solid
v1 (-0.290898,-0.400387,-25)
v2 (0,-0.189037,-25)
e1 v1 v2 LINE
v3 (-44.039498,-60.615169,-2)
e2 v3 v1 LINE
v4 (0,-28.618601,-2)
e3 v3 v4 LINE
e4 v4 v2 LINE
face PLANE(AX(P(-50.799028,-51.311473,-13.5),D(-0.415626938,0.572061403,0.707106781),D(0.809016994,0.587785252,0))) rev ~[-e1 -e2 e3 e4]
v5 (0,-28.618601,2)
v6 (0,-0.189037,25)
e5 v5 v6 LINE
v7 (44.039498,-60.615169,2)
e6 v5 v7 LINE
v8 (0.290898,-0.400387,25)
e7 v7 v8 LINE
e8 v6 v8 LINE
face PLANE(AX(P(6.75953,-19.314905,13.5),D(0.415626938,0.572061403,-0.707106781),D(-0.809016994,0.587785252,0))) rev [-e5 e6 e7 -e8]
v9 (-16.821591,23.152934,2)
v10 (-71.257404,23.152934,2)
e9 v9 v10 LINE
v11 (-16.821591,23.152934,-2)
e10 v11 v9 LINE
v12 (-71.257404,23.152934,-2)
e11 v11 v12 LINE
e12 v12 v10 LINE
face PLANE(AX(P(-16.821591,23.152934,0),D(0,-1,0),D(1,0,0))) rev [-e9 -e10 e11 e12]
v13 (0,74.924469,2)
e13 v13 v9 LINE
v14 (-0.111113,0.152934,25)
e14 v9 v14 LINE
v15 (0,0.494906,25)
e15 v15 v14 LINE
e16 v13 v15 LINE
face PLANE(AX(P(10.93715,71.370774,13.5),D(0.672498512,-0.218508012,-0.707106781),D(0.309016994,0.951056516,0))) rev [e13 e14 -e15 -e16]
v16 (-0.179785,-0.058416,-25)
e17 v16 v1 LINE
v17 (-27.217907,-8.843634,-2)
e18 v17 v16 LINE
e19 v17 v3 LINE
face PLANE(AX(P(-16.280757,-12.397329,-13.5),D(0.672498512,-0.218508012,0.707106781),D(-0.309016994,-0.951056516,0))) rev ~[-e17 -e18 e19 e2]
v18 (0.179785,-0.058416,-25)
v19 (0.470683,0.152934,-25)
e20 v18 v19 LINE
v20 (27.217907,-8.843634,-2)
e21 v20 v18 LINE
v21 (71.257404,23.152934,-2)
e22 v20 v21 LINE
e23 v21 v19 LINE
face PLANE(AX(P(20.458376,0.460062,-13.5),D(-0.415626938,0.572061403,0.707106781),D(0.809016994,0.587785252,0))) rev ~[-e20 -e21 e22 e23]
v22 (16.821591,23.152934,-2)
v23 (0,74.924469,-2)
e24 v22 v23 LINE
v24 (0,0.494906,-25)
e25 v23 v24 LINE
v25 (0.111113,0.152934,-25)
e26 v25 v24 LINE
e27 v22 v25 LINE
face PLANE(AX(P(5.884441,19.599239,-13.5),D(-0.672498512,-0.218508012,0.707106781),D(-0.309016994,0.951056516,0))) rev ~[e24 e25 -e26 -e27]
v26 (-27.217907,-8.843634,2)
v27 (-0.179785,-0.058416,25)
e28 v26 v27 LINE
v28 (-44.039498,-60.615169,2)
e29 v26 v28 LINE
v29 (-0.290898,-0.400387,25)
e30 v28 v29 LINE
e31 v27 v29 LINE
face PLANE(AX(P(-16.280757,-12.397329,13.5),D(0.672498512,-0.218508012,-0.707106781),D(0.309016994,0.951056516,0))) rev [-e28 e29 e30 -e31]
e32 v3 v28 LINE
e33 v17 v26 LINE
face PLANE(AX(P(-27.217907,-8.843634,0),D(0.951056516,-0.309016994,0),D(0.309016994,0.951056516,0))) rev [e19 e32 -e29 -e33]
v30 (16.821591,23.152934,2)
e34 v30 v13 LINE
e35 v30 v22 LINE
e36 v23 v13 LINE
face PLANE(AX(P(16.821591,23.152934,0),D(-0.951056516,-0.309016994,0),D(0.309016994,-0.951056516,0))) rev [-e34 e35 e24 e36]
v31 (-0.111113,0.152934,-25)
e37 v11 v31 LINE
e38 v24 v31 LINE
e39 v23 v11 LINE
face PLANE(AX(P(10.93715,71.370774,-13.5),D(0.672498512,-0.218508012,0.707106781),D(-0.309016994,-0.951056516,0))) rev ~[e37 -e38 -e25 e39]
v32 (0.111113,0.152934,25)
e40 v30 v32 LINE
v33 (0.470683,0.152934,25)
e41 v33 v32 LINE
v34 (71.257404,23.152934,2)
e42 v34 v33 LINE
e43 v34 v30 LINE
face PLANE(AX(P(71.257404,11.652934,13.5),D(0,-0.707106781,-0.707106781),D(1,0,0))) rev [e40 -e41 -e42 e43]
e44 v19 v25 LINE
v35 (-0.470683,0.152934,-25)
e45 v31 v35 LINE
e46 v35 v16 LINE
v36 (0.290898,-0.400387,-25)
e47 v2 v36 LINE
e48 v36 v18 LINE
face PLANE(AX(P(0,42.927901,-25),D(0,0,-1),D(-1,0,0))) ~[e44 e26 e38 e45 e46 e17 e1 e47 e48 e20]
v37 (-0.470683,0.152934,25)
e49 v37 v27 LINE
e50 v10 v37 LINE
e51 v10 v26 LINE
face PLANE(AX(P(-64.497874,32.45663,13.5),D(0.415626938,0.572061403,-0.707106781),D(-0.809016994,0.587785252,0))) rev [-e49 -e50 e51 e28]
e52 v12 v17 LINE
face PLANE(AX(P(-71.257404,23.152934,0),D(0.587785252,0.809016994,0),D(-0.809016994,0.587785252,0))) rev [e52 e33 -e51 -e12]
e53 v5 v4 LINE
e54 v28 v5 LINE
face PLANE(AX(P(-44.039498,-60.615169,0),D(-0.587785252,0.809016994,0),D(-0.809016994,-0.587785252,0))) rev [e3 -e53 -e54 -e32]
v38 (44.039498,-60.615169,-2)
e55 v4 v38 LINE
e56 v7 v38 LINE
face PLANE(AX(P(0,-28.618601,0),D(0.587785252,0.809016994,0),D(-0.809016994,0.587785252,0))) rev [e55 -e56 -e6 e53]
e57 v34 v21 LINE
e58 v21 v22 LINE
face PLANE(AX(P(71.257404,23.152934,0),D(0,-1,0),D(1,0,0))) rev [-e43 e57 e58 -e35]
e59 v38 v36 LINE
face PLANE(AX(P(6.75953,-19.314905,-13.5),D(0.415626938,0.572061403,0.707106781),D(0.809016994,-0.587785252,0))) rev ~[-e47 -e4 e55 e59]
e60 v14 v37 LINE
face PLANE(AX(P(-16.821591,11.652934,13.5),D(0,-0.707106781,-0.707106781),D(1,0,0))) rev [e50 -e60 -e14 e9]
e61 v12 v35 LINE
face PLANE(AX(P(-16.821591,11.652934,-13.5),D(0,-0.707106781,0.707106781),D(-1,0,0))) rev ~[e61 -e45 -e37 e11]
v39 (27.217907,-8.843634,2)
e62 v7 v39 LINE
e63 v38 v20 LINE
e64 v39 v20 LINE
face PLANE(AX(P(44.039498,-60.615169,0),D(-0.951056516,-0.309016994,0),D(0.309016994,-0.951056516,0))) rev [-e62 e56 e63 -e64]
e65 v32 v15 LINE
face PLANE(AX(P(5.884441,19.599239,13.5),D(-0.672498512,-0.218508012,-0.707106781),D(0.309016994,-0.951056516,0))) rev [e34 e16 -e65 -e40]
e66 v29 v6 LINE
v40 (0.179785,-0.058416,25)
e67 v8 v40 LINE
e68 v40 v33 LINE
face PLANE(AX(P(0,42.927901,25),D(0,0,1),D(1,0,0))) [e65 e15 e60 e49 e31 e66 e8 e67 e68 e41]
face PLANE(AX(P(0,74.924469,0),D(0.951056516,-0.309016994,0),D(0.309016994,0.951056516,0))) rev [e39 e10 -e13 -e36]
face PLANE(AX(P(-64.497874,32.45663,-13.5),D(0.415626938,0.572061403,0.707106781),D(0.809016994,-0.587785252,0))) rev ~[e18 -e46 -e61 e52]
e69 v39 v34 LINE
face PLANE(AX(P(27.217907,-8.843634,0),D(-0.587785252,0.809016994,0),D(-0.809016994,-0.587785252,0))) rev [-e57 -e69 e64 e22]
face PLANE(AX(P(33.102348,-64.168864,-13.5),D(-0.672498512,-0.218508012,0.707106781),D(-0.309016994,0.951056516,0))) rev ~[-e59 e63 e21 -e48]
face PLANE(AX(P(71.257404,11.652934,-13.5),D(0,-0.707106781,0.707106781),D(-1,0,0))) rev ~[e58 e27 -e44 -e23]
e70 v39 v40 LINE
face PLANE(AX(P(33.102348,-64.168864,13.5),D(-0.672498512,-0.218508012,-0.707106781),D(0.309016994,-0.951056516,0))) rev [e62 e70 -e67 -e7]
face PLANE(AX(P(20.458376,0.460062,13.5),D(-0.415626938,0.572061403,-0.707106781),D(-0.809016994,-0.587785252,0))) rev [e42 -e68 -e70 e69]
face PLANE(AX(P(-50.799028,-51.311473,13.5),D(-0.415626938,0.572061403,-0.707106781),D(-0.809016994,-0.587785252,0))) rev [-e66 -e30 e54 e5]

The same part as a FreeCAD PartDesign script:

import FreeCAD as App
import Part
import Sketcher

V = App.Vector
Q = App.Units.Quantity


def edges_at(feature, points):
    """Names of the edges that pass closest to the given points."""
    edges = feature.Shape.Edges
    near = lambda p: min(range(len(edges)), key=lambda i: edges[i].distToShape(Part.Vertex(*p))[0])
    return sorted({f"Edge{near(p) + 1}" for p in points})

doc = App.newDocument("Part")
body = doc.addObject("PartDesign::Body", "Body")

sketch1 = body.newObject("Sketcher::SketchObject", "Sketch")
sketch1.AttachmentSupport = (doc.getObject("XY_Plane"), [""])
sketch1.MapMode = "FlatFace"
sketch1.addGeometry([
    Part.LineSegment(V(16.821591, 23.152934, 0), V(0, 74.924469, 0)),
    Part.LineSegment(V(0, 74.924469, 0), V(-16.821591, 23.152934, 0)),
    Part.LineSegment(V(-16.821591, 23.152934, 0), V(-71.257404, 23.152934, 0)),
    Part.LineSegment(V(-71.257404, 23.152934, 0), V(-27.217907, -8.843634, 0)),
    Part.LineSegment(V(-27.217907, -8.843634, 0), V(-44.039498, -60.615169, 0)),
    Part.LineSegment(V(-44.039498, -60.615169, 0), V(0, -28.618601, 0)),
    Part.LineSegment(V(0, -28.618601, 0), V(44.039498, -60.615169, 0)),
    Part.LineSegment(V(44.039498, -60.615169, 0), V(27.217907, -8.843634, 0)),
    Part.LineSegment(V(27.217907, -8.843634, 0), V(71.257404, 23.152934, 0)),
    Part.LineSegment(V(71.257404, 23.152934, 0), V(16.821591, 23.152934, 0)),
], False)
sketch1.addConstraint([
    Sketcher.Constraint("Coincident", 0, 2, 1, 1),
    Sketcher.Constraint("Coincident", 1, 2, 2, 1),
    Sketcher.Constraint("Coincident", 2, 2, 3, 1),
    Sketcher.Constraint("Coincident", 3, 2, 4, 1),
    Sketcher.Constraint("Coincident", 4, 2, 5, 1),
    Sketcher.Constraint("Coincident", 5, 2, 6, 1),
    Sketcher.Constraint("Coincident", 6, 2, 7, 1),
    Sketcher.Constraint("Coincident", 7, 2, 8, 1),
    Sketcher.Constraint("Coincident", 8, 2, 9, 1),
    Sketcher.Constraint("Coincident", 9, 2, 0, 1),
    Sketcher.Constraint("Horizontal", 2),
    Sketcher.Constraint("Horizontal", 9),
    Sketcher.Constraint("Symmetric", 4, 2, 6, 2, -2),
    Sketcher.Constraint("Symmetric", 3, 2, 7, 2, -2),
    Sketcher.Constraint("Symmetric", 2, 2, 8, 2, -2),
    Sketcher.Constraint("PointOnObject", 0, 2, -2),
    Sketcher.Constraint("PointOnObject", 5, 2, -2),
    Sketcher.Constraint("Parallel", 1, 4),
    Sketcher.Constraint("Parallel", 3, 6),
    Sketcher.Constraint("Parallel", 0, 7),
    Sketcher.Constraint("Equal", 1, 3),
    Sketcher.Constraint("Equal", 3, 4),
    Sketcher.Constraint("Equal", 4, 5),
    Sketcher.Constraint("Angle", 0, Q("108 deg")),
    Sketcher.Constraint("Angle", 3, Q("-36 deg")),
    Sketcher.Constraint("DistanceY", 5, 2, -1, 1, 28.618601),
    Sketcher.Constraint("DistanceX", 2, 2, 2, 1, 54.435813),
])
pad1 = body.newObject("PartDesign::Pad", "Pad")
pad1.Profile = sketch1
pad1.Length = 25
doc.recompute()

chamfer = body.newObject("PartDesign::Chamfer", "Chamfer")
chamfer.Base = (pad1, edges_at(pad1, [
    (8.411, 49.039, 25),
    (-8.411, 49.039, 25),
    (-44.039, 23.153, 25),
    (-49.238, 7.155, 25),
    (-35.629, -34.729, 25),
    (-22.02, -44.617, 25),
    (22.02, -44.617, 25),
    (35.629, -34.729, 25),
    (49.238, 7.155, 25),
    (44.039, 23.153, 25),
]))
chamfer.Size = 23
body2 = doc.addObject("PartDesign::Body", "Body001")
doc.recompute()

body2.BaseFeature = body
doc.recompute()

mirroring = doc.addObject("Part::Mirroring", "Mirroring")
mirroring.Source = body
mirroring.Base = V(0, 0, 0)
mirroring.Normal = V(0, 0, 1)
body3 = doc.addObject("PartDesign::Body", "Body002")
body3.BaseFeature = mirroring
boolean = body2.newObject("PartDesign::Boolean", "Boolean")
boolean.Type = "Fuse"
boolean.addObjects([body3])
doc.recompute()
mirroring.Visibility = False

doc.recompute()
